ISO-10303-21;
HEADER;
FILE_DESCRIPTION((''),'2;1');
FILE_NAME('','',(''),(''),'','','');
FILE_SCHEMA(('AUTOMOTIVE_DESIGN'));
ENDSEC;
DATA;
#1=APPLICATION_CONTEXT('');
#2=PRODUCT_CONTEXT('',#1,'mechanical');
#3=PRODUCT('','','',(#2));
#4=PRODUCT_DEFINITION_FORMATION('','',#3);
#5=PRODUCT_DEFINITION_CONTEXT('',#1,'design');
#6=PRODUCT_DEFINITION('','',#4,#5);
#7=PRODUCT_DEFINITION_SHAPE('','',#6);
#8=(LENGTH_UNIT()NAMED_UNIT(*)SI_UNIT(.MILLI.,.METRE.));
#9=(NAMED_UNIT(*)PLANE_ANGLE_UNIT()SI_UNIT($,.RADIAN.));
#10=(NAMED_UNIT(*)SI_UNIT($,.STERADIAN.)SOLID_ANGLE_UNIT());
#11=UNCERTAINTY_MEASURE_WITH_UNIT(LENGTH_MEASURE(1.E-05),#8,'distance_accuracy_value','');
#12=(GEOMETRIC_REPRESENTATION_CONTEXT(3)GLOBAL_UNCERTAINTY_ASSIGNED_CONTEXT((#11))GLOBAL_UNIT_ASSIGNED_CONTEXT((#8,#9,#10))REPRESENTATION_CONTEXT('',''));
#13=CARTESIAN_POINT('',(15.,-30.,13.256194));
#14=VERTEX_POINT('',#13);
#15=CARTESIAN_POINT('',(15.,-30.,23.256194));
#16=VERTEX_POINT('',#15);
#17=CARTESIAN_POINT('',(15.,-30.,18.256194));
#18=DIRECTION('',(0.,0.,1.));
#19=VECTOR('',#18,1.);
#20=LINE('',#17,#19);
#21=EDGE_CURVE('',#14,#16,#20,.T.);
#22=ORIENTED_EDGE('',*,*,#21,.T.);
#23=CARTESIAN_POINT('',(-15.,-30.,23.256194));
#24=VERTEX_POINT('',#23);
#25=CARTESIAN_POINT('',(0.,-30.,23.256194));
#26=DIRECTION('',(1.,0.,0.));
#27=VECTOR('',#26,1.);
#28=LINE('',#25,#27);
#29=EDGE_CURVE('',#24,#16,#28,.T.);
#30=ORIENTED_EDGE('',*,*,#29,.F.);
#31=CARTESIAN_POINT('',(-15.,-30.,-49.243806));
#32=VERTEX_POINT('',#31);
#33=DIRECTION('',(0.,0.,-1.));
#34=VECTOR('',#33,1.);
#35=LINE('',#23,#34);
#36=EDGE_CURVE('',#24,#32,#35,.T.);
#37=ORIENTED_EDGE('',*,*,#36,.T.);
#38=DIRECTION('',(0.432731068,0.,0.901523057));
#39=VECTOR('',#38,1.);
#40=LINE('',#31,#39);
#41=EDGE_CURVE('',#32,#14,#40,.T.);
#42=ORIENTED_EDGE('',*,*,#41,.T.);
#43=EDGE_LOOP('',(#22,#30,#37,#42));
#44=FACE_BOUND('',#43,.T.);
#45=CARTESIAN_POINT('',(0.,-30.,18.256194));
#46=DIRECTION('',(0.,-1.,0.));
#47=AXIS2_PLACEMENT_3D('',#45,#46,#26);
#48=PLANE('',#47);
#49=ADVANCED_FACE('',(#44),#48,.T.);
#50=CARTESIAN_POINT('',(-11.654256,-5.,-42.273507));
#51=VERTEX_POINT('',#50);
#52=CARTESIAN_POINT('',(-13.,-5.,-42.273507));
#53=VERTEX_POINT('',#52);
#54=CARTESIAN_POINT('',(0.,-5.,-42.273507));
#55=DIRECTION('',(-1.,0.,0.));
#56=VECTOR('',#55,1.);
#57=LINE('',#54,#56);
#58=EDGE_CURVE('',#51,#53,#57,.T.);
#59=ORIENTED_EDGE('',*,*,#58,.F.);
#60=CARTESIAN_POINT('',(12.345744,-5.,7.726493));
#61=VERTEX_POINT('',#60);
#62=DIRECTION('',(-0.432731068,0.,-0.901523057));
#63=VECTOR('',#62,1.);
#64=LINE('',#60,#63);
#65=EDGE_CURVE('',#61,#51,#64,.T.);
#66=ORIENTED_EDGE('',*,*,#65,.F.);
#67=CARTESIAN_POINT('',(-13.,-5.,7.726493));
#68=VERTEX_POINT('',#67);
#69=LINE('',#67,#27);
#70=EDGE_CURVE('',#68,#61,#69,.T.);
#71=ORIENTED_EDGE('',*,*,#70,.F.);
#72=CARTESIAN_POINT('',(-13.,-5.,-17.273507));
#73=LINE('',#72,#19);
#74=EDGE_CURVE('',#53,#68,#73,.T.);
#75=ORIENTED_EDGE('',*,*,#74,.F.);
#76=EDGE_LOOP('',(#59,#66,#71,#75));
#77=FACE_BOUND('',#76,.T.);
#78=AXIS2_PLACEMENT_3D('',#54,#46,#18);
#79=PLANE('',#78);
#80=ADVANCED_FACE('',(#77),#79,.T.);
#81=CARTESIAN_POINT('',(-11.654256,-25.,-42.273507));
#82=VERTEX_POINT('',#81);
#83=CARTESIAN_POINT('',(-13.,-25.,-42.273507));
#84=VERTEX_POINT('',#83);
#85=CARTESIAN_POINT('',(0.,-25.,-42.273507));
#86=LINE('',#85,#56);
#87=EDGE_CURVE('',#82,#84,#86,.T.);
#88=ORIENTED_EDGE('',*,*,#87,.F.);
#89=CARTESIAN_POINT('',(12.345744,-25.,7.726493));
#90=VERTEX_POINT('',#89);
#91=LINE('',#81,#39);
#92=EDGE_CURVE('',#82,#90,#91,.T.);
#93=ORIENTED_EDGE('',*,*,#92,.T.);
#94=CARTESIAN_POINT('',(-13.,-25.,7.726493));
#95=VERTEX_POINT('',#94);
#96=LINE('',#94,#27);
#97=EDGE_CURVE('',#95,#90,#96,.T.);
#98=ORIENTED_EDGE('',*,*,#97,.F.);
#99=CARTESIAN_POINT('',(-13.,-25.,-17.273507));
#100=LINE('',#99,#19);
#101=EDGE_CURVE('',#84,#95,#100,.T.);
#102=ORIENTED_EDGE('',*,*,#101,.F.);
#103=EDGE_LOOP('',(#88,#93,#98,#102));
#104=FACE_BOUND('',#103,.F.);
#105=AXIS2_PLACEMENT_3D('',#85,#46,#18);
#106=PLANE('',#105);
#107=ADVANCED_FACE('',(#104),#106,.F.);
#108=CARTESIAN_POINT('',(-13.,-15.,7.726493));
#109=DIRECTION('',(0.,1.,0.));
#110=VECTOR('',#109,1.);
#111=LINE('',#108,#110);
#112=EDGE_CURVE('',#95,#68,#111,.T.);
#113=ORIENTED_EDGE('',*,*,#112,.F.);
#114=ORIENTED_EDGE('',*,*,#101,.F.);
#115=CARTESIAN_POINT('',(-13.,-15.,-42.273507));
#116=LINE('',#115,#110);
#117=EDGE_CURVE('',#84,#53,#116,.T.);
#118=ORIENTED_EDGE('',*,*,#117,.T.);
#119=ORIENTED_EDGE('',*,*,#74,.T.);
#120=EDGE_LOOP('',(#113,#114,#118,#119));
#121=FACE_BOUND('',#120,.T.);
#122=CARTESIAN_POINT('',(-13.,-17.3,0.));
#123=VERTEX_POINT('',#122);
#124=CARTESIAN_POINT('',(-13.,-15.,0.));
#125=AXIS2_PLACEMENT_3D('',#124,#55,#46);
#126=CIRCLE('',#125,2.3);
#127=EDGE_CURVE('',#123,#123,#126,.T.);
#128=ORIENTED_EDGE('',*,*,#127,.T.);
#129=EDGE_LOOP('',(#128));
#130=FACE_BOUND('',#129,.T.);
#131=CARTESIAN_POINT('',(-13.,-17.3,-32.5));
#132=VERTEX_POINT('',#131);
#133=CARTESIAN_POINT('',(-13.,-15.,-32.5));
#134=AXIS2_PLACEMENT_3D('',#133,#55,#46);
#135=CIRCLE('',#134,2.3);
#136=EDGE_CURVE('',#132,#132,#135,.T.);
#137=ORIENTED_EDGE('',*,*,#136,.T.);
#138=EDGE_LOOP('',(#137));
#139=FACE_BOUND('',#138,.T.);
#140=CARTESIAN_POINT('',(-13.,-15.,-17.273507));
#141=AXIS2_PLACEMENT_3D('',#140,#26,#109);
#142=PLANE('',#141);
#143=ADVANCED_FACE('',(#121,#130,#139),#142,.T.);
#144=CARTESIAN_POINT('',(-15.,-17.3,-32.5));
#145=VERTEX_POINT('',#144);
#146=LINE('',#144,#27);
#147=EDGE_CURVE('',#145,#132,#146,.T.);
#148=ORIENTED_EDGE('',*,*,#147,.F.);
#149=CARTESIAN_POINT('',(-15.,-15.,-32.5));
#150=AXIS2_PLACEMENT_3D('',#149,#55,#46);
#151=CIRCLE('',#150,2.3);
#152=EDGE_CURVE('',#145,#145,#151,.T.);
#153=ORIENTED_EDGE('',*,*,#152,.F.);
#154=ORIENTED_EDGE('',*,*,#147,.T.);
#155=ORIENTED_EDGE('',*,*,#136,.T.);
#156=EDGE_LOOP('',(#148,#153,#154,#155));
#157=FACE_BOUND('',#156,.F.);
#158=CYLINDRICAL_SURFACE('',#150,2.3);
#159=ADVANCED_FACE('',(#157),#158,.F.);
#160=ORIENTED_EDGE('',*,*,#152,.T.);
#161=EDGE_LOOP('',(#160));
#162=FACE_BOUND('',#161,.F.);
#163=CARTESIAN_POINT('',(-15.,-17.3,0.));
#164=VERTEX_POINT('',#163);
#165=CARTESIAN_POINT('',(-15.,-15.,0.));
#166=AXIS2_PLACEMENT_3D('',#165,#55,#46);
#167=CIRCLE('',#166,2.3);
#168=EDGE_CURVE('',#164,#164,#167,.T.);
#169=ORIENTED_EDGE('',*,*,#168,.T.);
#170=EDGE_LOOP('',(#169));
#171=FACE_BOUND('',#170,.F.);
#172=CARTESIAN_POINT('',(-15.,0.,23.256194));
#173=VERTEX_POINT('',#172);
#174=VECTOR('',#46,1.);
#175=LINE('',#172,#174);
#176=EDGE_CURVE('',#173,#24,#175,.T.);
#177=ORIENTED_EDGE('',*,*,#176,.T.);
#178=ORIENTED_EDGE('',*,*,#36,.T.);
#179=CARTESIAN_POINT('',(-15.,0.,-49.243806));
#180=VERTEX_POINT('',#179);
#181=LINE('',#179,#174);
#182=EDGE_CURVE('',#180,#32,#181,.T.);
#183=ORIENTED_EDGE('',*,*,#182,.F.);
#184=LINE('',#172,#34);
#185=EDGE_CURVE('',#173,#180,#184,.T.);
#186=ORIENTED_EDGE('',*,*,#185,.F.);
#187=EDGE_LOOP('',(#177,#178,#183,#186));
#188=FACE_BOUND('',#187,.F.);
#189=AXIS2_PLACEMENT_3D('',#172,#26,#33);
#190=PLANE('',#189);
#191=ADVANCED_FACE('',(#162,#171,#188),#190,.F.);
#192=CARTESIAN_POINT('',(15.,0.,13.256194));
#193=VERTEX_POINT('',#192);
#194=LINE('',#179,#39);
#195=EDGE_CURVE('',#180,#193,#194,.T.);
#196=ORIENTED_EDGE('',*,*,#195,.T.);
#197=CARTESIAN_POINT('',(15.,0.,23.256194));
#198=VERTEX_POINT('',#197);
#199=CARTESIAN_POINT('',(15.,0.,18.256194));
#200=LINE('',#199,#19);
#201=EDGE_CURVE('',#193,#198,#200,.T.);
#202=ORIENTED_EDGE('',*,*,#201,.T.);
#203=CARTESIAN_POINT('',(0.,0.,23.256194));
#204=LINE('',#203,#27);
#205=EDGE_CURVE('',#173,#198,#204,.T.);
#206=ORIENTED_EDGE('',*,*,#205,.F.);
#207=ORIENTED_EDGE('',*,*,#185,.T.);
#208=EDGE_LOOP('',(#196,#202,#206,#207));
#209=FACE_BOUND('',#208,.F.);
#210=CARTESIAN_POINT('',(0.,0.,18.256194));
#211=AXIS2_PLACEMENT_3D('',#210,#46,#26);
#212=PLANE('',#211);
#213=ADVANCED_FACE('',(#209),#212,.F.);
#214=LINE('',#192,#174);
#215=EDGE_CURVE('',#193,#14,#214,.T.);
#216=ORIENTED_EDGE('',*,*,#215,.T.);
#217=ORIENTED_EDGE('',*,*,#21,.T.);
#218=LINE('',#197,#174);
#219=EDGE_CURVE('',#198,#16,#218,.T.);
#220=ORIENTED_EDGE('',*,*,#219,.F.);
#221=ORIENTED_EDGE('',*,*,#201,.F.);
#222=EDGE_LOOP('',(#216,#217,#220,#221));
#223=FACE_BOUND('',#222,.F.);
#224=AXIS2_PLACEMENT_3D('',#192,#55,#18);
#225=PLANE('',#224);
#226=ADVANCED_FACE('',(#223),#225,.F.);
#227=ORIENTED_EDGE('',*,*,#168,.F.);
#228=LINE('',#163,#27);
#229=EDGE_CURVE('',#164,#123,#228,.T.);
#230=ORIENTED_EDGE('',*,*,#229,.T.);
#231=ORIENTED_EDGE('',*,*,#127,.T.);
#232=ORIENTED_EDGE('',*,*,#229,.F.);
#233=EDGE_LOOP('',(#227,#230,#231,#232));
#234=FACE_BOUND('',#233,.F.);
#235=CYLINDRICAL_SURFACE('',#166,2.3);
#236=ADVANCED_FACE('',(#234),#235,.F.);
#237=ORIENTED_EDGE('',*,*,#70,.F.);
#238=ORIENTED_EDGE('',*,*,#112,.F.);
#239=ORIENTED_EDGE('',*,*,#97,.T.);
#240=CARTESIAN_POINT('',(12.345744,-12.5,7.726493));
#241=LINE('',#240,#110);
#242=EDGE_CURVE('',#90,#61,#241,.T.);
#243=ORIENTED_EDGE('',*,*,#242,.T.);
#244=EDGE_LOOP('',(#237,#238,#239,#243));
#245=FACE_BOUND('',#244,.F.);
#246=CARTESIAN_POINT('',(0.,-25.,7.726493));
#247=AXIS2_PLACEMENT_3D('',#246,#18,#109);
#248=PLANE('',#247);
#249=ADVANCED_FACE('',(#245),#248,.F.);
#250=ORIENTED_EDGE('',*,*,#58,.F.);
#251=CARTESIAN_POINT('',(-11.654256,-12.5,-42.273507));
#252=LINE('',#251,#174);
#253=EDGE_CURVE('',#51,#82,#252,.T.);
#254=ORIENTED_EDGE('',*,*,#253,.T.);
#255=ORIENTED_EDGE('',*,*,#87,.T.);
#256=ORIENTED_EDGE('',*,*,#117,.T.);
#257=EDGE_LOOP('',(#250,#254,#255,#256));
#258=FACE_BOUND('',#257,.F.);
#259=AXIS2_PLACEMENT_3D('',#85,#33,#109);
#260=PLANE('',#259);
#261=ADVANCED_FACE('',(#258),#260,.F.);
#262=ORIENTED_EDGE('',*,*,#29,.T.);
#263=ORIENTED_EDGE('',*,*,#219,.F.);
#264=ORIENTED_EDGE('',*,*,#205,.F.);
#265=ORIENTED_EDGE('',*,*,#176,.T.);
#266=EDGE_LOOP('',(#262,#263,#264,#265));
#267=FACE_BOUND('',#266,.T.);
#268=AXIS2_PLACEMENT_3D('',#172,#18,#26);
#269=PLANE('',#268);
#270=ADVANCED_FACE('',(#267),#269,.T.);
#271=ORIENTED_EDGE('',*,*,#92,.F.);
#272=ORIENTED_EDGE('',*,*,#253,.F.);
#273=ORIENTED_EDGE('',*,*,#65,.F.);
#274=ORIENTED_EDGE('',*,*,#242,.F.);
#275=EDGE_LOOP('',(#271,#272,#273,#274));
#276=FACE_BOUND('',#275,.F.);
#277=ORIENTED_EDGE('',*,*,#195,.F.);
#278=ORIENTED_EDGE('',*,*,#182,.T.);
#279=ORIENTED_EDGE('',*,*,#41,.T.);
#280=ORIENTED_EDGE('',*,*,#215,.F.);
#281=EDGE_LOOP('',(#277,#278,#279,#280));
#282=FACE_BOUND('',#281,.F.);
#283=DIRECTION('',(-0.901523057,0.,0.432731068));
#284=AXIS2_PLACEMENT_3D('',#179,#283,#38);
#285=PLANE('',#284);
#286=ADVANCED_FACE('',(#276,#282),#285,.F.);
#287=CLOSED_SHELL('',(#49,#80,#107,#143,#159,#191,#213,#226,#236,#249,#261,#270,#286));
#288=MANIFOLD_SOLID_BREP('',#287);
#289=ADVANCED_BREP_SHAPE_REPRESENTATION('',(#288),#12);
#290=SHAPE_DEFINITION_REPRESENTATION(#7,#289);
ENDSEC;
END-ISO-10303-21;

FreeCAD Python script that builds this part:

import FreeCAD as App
import Part
import Sketcher
from FreeCAD import Vector


def add_polygon(sketch, points):
    """Adds a closed chain of lines whose ends are joined by coincident constraints."""
    first, n = sketch.GeometryCount, len(points)
    for a, b in zip(points, points[1:] + points[:1]):
        sketch.addGeometry(Part.LineSegment(App.Vector(*a, 0), App.Vector(*b, 0)), False)
    for i in range(n):
        sketch.addConstraint(Sketcher.Constraint("Coincident", first + i, 2, first + (i + 1) % n, 1))

doc = App.newDocument("Part")
body = doc.addObject("PartDesign::Body", "Body")

# Sketch on XZ plane
sketch1 = body.newObject("Sketcher::SketchObject", "Sketch")
sketch1.AttachmentSupport = (doc.getObject("XZ_Plane"), [""])
sketch1.MapMode = "FlatFace"
add_polygon(sketch1, [(-15, 23.256194), (-15, -49.243806), (15, 13.256194), (15, 23.256194)])  # lines 0-3
sketch1.addConstraint([
    Sketcher.Constraint("Vertical", 0),
    Sketcher.Constraint("Vertical", 2),
    Sketcher.Constraint("Horizontal", 3),
    Sketcher.Constraint("DistanceX", 3, 2, 3, 1, 30.0),
    Sketcher.Constraint("DistanceY", 2, 1, 2, 2, 10.0),
    Sketcher.Constraint("DistanceY", 0, 2, 0, 1, 72.5),
    Sketcher.Constraint("DistanceX", 0, 2, -1, 1, 15.0),
    Sketcher.Constraint("DistanceY", 0, 2, -1, 1, 49.243806),
])
pad1 = body.newObject("PartDesign::Pad", "Pad")
pad1.Profile = sketch1
pad1.Length = 30

# Sketch on YZ plane
sketch2 = body.newObject("Sketcher::SketchObject", "Sketch001")
sketch2.AttachmentSupport = (doc.getObject("YZ_Plane"), [""])
sketch2.MapMode = "FlatFace"
sketch2.AttachmentOffset = App.Placement(Vector(0, 0, -15), App.Rotation())
sketch2.addGeometry([
    Part.Circle(Vector(-15, 0, 0), Vector(0, 0, 1), 2.3),
    Part.Circle(Vector(-15, -32.5, 0), Vector(0, 0, 1), 2.3),
], False)
sketch2.addConstraint([
    Sketcher.Constraint("Equal", 0, 1),
    Sketcher.Constraint("PointOnObject", 0, 3, -1),
    Sketcher.Constraint("Vertical", 0, 3, 1, 3),
    Sketcher.Constraint("Diameter", 0, 4.6),
    Sketcher.Constraint("DistanceX", 0, 3, -1, 1, 15.0),
    Sketcher.Constraint("DistanceY", 1, 3, -1, 1, 32.5),
])
pocket1 = body.newObject("PartDesign::Pocket", "Pocket")
pocket1.Profile = sketch2
pocket1.Type = "ThroughAll"
pocket1.Reversed = True

# Sketch on YZ plane
sketch3 = body.newObject("Sketcher::SketchObject", "Sketch002")
sketch3.AttachmentSupport = (doc.getObject("YZ_Plane"), [""])
sketch3.MapMode = "FlatFace"
add_polygon(sketch3, [(-25, 7.726493), (-25, -42.273507), (-5, -42.273507), (-5, 7.726493)])  # lines 0-3
sketch3.addConstraint([
    Sketcher.Constraint("Vertical", 0),
    Sketcher.Constraint("Horizontal", 1),
    Sketcher.Constraint("Vertical", 2),
    Sketcher.Constraint("Horizontal", 3),
    Sketcher.Constraint("DistanceX", 1, 1, 1, 2, 20.0),
    Sketcher.Constraint("DistanceY", 0, 2, 0, 1, 50.0),
    Sketcher.Constraint("DistanceX", 0, 2, -1, 1, 25.0),
    Sketcher.Constraint("DistanceY", 0, 2, -1, 1, 42.273507),
])
pocket2 = body.newObject("PartDesign::Pocket", "Pocket001")
pocket2.Profile = sketch3
pocket2.Type = "TwoLengths"
pocket2.Length = 13
pocket2.Length2 = 15.001

doc.recompute()
